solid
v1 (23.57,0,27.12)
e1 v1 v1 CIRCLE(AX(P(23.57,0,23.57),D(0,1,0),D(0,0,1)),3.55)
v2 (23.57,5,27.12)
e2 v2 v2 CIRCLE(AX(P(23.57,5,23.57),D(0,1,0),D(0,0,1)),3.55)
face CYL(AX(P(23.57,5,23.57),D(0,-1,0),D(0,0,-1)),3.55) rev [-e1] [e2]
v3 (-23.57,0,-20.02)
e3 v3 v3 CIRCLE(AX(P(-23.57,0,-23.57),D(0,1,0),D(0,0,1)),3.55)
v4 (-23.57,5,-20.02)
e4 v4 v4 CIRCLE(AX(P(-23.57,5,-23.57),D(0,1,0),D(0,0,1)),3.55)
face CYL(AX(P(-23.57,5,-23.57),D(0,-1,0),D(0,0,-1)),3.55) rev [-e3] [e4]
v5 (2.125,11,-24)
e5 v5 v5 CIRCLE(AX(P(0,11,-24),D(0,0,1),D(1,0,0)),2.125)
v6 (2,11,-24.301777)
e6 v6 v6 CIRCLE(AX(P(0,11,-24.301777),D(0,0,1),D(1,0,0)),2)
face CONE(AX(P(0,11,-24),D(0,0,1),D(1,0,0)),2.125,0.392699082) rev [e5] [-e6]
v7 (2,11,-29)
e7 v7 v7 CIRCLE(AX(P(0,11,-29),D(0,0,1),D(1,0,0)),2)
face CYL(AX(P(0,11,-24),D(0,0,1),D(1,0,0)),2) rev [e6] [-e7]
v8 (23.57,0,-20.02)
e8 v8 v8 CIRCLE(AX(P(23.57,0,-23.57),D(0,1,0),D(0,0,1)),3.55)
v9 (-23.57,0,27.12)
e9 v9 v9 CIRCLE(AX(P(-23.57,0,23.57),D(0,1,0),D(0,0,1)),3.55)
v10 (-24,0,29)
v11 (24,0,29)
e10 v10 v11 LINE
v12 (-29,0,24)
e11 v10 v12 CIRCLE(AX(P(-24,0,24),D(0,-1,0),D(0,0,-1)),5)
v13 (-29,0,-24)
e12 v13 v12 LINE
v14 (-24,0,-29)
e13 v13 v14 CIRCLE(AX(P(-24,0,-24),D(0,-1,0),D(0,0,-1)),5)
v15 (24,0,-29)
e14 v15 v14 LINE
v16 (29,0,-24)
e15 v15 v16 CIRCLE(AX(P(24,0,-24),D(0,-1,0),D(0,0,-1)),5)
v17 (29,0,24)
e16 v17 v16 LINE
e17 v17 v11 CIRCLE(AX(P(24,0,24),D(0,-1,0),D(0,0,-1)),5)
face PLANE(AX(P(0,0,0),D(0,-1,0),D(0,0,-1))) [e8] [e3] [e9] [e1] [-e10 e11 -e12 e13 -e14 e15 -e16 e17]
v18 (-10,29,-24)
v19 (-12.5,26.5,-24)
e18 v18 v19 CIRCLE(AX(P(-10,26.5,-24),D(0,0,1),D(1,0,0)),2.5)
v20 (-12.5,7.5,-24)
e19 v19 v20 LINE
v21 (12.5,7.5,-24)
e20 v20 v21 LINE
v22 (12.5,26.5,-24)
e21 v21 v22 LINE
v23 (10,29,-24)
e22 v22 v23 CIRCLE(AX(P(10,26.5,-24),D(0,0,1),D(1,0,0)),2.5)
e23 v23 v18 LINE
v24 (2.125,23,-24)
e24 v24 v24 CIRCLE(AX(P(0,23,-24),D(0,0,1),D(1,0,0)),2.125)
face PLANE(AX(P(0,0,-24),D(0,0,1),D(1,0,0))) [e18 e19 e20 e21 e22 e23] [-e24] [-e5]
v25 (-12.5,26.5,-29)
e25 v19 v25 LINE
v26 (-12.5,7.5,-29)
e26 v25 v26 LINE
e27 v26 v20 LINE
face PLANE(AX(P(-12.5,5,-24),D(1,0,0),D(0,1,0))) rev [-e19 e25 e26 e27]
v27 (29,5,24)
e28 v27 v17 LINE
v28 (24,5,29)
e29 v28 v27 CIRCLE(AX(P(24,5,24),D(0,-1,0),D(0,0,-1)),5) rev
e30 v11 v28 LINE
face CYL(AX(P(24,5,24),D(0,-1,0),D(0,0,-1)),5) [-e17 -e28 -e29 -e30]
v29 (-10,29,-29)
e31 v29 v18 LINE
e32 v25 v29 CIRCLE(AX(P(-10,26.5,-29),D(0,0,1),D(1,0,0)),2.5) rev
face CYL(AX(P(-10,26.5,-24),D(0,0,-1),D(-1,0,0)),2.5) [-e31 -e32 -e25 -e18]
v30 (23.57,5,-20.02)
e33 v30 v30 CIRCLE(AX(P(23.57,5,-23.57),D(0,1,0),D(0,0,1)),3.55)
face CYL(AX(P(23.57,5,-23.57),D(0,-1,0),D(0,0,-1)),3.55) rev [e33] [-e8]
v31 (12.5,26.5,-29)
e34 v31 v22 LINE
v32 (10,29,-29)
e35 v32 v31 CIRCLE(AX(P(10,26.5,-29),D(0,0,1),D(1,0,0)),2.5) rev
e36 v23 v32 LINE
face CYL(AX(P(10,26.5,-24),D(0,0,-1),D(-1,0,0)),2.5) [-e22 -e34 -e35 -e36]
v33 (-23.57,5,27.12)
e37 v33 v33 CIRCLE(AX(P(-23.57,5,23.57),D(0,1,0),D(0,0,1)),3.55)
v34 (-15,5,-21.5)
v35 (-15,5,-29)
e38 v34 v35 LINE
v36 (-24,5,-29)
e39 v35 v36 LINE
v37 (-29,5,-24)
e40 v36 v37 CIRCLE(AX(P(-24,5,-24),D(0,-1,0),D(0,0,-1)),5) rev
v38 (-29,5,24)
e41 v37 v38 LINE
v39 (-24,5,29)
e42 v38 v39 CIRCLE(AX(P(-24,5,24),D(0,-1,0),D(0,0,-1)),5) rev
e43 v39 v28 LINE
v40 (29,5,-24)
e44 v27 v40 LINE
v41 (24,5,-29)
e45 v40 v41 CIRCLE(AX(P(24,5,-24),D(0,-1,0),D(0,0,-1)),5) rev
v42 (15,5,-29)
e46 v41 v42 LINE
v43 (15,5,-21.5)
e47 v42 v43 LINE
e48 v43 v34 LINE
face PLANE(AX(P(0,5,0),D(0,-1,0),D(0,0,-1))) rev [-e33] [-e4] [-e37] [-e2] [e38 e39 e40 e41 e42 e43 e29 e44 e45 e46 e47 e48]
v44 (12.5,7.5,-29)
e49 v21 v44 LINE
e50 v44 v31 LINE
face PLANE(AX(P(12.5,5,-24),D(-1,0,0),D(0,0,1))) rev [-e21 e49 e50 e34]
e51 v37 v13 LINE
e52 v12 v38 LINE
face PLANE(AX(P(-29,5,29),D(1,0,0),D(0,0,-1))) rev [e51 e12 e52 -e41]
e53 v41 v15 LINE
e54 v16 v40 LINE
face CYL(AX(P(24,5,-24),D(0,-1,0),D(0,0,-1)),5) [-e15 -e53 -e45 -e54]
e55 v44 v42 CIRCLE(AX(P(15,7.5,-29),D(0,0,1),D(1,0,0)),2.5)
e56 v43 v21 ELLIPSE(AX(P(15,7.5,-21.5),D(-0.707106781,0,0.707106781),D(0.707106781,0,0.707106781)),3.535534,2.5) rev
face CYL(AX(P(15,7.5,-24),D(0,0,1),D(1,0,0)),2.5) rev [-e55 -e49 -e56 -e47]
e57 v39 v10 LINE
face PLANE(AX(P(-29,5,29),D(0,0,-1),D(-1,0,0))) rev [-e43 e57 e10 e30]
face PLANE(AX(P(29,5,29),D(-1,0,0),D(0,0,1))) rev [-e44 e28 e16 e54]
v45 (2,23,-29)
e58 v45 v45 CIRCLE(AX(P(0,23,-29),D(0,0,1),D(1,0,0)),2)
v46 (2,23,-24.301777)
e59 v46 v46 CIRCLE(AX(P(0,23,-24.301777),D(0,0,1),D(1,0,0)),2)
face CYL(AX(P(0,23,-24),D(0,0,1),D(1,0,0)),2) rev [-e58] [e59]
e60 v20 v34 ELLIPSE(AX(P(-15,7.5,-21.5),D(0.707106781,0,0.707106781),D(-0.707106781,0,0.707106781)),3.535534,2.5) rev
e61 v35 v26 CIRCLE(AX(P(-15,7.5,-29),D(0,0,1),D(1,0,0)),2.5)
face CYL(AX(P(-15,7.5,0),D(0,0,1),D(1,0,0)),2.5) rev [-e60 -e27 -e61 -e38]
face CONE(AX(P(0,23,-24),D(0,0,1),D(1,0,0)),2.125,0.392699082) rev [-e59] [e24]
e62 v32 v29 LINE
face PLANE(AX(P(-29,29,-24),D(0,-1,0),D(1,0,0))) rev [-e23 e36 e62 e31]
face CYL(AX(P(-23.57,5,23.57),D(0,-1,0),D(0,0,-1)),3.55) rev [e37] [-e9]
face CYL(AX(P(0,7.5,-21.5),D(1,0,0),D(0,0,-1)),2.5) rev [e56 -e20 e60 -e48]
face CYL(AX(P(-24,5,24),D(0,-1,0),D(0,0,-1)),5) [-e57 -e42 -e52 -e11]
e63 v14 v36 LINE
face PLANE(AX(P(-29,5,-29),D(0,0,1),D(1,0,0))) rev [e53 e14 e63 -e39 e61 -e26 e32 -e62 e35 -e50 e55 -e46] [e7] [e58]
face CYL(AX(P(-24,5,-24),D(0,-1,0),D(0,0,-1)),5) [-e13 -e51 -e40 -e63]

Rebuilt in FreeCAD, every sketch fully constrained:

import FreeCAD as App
import Part
import Sketcher
from FreeCAD import Vector
Q = App.Units.Quantity


def edges_at(feature, points):
    """Names of the edges that pass closest to the given points."""
    edges = feature.Shape.Edges
    near = lambda p: min(range(len(edges)), key=lambda i: edges[i].distToShape(Part.Vertex(*p))[0])
    return sorted({f"Edge{near(p) + 1}" for p in points})

doc = App.newDocument("Part")
body = doc.addObject("PartDesign::Body", "Body")

# Sketch on XZ plane
sketch1 = body.newObject("Sketcher::SketchObject", "Sketch")
sketch1.AttachmentSupport = (doc.getObject("XZ_Plane"), [""])
sketch1.MapMode = "FlatFace"
sketch1.addGeometry([
    Part.LineSegment(Vector(-29, -29, 0), Vector(-29, 29, 0)),  # 0
    Part.LineSegment(Vector(-29, 29, 0), Vector(29, 29, 0)),  # 1
    Part.LineSegment(Vector(29, 29, 0), Vector(29, -29, 0)),  # 2
    Part.LineSegment(Vector(29, -29, 0), Vector(-29, -29, 0)),  # 3
    Part.Circle(Vector(-23.6, 23.6, 0), Vector(0, 0, 1), 3.5),  # 4
    Part.Circle(Vector(23.6, 23.6, 0), Vector(0, 0, 1), 3.5),  # 5
    Part.Circle(Vector(-23.6, -23.6, 0), Vector(0, 0, 1), 3.5),  # 6
    Part.Circle(Vector(23.6, -23.6, 0), Vector(0, 0, 1), 3.5),  # 7
], False)
sketch1.addConstraint([
    Sketcher.Constraint("Coincident", 0, 2, 1, 1),
    Sketcher.Constraint("Coincident", 1, 2, 2, 1),
    Sketcher.Constraint("Coincident", 2, 2, 3, 1),
    Sketcher.Constraint("Coincident", 3, 2, 0, 1),
    Sketcher.Constraint("Vertical", 0),
    Sketcher.Constraint("Horizontal", 1),
    Sketcher.Constraint("Vertical", 2),
    Sketcher.Constraint("Horizontal", 3),
    Sketcher.Constraint("Equal", 4, 5),
    Sketcher.Constraint("Equal", 5, 6),
    Sketcher.Constraint("Equal", 6, 7),
    Sketcher.Constraint("Symmetric", 5, 3, 6, 3, -1, 1),
    Sketcher.Constraint("Symmetric", 4, 3, 7, 3, -1, 1),
    Sketcher.Constraint("Symmetric", 0, 2, 2, 2, -1, 1),
    Sketcher.Constraint("Symmetric", 4, 3, 5, 3, -2),
    Sketcher.Constraint("Equal", 3, 0),
    Sketcher.Constraint("Diameter", 4, 7.1),
    Sketcher.Constraint("DistanceX", 1, 1, 1, 2, 58.0),
    Sketcher.Constraint("DistanceX", 4, 3, -1, 1, 23.57),
    Sketcher.Constraint("DistanceY", -1, 1, 4, 3, 23.57),
])
pad1 = body.newObject("PartDesign::Pad", "Pad")
pad1.Profile = sketch1
pad1.Length = 5
pad1.Reversed = True
doc.recompute()

fillet = body.newObject("PartDesign::Fillet", "Fillet")
fillet.Base = (pad1, edges_at(pad1, [
    (29, 2.5, 29),
    (-29, 2.5, 29),
    (-29, 2.5, -29),
    (29, 2.5, -29),
]))
fillet.Radius = 5

# Sketch on XY plane
sketch2 = body.newObject("Sketcher::SketchObject", "Sketch001")
sketch2.AttachmentSupport = (doc.getObject("XY_Plane"), [""])
sketch2.MapMode = "FlatFace"
sketch2.AttachmentOffset = App.Placement(Vector(0, 0, -29), App.Rotation())
sketch2.addGeometry([
    Part.LineSegment(Vector(-12, 29, 0), Vector(-12, 5, 0)),
    Part.LineSegment(Vector(-12, 5, 0), Vector(12, 5, 0)),
    Part.LineSegment(Vector(12, 5, 0), Vector(12, 29, 0)),
    Part.LineSegment(Vector(12, 29, 0), Vector(-12, 29, 0)),
], False)
sketch2.addConstraint([
    Sketcher.Constraint("Coincident", 0, 2, 1, 1),
    Sketcher.Constraint("Coincident", 1, 2, 2, 1),
    Sketcher.Constraint("Coincident", 2, 2, 3, 1),
    Sketcher.Constraint("Coincident", 3, 2, 0, 1),
    Sketcher.Constraint("Vertical", 0),
    Sketcher.Constraint("Horizontal", 1),
    Sketcher.Constraint("Vertical", 2),
    Sketcher.Constraint("Horizontal", 3),
    Sketcher.Constraint("DistanceX", 1, 1, 1, 2, 25.0),
    Sketcher.Constraint("DistanceY", 0, 2, 0, 1, 24.0),
    Sketcher.Constraint("DistanceY", -1, 1, 0, 2, 5.0),
    Sketcher.Constraint("DistanceX", 0, 2, -1, 1, 12.5),
])
pad2 = body.newObject("PartDesign::Pad", "Pad001")
pad2.Profile = sketch2
pad2.Length = 5

# Sketch on YZ plane
sketch3 = body.newObject("Sketcher::SketchObject", "Sketch002")
sketch3.AttachmentSupport = (doc.getObject("YZ_Plane"), [""])
sketch3.MapMode = "FlatFace"
sketch3.addGeometry([
    Part.LineSegment(Vector(11, -29, 0), Vector(11, -24, 0)),  # 0
    Part.LineSegment(Vector(11, -24, 0), Vector(8.88, -24, 0)),  # 1
    Part.LineSegment(Vector(8.88, -24, 0), Vector(9, -24.3, 0)),  # 2
    Part.LineSegment(Vector(9, -24.3, 0), Vector(9, -29, 0)),  # 3
    Part.LineSegment(Vector(9, -29, 0), Vector(11, -29, 0)),  # 4
], False)
sketch3.addGeometry(Part.LineSegment(Vector(11, -24, 0), Vector(11, -29, 0)), True)  # axis
sketch3.addConstraint([
    Sketcher.Constraint("Coincident", 0, 2, 1, 1),
    Sketcher.Constraint("Coincident", 1, 2, 2, 1),
    Sketcher.Constraint("Coincident", 2, 2, 3, 1),
    Sketcher.Constraint("Coincident", 3, 2, 4, 1),
    Sketcher.Constraint("Coincident", 4, 2, 0, 1),
    Sketcher.Constraint("Vertical", 0),
    Sketcher.Constraint("Horizontal", 1),
    Sketcher.Constraint("Vertical", 3),
    Sketcher.Constraint("Horizontal", 4),
    Sketcher.Constraint("Vertical", 5),
    Sketcher.Constraint("Coincident", 5, 1, 0, 2),
    Sketcher.Constraint("Horizontal", 3, 2, 5, 2),
    Sketcher.Constraint("DistanceX", 4, 1, 4, 2, 2.0),
    Sketcher.Constraint("DistanceY", 0, 1, 0, 2, 5.0),
    Sketcher.Constraint("DistanceX", -1, 1, 0, 2, 11.0),
    Sketcher.Constraint("DistanceY", 0, 2, -1, 1, 24.0),
    Sketcher.Constraint("Angle", 2, Q("-67.5 deg")),
    Sketcher.Constraint("DistanceX", 1, 2, 1, 1, 2.125),
])
groove = body.newObject("PartDesign::Groove", "Groove")
groove.Profile = sketch3
groove.ReferenceAxis = (sketch3, ["Axis0"])
groove.Angle = 360
doc.recompute()

linearpattern = body.newObject("PartDesign::LinearPattern", "LinearPattern")
linearpattern.Originals = [groove]
linearpattern.Direction = (doc.getObject("Y_Axis"), [""])
linearpattern.Mode = "offset"
linearpattern.Offset = 12
linearpattern.Occurrences = 2
body.Tip = linearpattern
doc.recompute()

fillet2 = body.newObject("PartDesign::Fillet", "Fillet001")
fillet2.Base = (linearpattern, edges_at(linearpattern, [
    (-12.5, 5, -26.5),
    (12.5, 5, -26.5),
    (12.5, 29, -26.5),
    (-12.5, 29, -26.5),
    (0, 5, -24),
]))
fillet2.Radius = 2.5

doc.recompute()
